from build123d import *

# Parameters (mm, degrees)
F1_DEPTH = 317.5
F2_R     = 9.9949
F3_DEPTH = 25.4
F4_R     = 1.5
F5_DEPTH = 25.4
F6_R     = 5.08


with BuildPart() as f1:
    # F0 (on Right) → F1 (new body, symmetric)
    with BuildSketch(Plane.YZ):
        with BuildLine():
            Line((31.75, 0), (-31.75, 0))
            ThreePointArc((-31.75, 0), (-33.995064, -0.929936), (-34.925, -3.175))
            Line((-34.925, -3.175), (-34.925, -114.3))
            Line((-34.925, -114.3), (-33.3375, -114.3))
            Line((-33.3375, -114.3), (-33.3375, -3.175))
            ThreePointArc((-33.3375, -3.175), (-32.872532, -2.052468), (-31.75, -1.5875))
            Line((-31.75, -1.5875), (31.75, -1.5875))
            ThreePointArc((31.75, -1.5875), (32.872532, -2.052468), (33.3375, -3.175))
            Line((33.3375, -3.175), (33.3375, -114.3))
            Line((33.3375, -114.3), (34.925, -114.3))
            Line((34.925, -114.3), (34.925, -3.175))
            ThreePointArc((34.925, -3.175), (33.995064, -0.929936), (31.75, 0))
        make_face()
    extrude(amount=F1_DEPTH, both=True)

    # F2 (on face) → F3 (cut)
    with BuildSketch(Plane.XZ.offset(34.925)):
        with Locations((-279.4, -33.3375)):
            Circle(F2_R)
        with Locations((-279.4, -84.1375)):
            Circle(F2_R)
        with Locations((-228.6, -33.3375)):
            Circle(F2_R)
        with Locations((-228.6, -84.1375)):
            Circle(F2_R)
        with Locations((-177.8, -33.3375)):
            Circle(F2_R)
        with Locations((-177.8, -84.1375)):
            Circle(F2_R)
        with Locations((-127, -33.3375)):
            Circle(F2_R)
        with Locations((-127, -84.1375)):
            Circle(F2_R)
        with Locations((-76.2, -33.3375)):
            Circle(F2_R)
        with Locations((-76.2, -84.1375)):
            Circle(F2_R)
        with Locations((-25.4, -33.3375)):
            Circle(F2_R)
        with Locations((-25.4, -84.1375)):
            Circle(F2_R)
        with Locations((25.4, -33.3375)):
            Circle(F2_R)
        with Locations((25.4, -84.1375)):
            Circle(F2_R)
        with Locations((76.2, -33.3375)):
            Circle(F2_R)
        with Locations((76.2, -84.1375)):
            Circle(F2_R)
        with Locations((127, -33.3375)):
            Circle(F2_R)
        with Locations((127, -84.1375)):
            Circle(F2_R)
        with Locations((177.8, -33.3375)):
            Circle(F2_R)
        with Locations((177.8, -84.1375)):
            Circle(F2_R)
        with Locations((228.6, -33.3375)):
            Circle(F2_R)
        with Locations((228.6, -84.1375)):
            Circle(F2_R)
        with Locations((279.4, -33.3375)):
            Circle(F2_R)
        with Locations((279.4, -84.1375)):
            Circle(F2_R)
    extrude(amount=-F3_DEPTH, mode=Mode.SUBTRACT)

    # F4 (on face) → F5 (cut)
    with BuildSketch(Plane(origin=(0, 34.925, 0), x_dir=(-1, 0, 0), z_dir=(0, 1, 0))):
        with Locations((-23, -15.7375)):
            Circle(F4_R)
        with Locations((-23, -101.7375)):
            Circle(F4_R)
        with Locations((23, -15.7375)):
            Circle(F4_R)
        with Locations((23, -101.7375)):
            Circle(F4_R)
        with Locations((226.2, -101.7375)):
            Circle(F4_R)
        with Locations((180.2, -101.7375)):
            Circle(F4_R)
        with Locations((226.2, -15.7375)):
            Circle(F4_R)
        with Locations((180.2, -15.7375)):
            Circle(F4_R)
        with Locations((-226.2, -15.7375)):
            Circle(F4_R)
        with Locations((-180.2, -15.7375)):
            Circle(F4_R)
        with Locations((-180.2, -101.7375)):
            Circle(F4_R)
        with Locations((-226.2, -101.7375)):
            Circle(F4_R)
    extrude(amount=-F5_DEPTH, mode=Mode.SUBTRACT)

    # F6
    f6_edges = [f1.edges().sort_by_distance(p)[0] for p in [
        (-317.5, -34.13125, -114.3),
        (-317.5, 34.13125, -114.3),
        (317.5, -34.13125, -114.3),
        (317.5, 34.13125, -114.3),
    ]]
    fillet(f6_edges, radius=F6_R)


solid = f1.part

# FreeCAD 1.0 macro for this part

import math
import FreeCAD as App
import Part
import Sketcher

V = App.Vector
Q = App.Units.Quantity


def edges_at(feature, points):
    """Names of the edges that pass closest to the given points."""
    edges = feature.Shape.Edges
    near = lambda p: min(range(len(edges)), key=lambda i: edges[i].distToShape(Part.Vertex(*p))[0])
    return sorted({f"Edge{near(p) + 1}" for p in points})

doc = App.newDocument("Part")
body = doc.addObject("PartDesign::Body", "Body")

# Sketch on YZ plane
sketch1 = body.newObject("Sketcher::SketchObject", "Sketch")
sketch1.AttachmentSupport = (doc.getObject("YZ_Plane"), [""])
sketch1.MapMode = "FlatFace"
sketch1.addGeometry(Part.LineSegment(V(31.75, 0, 0), V(-31.75, 0, 0)), False)
sketch1.addGeometry(Part.ArcOfCircle(Part.Circle(V(-31.75, -3.175, 0), V(0, 0, 1), 3.175), math.radians(90.000002), math.radians(179.999998)), False)
sketch1.addGeometry(Part.LineSegment(V(-34.925, -3.175, 0), V(-34.925, -114.3, 0)), False)
sketch1.addGeometry(Part.LineSegment(V(-34.925, -114.3, 0), V(-33.3375, -114.3, 0)), False)
sketch1.addGeometry(Part.LineSegment(V(-33.3375, -114.3, 0), V(-33.3375, -3.175, 0)), False)
sketch1.addGeometry(Part.ArcOfCircle(Part.Circle(V(-31.75, -3.175, 0), V(0, 0, 1), 1.5875), math.radians(90.000002), math.radians(179.999998)), False)
sketch1.addGeometry(Part.LineSegment(V(-31.75, -1.5875, 0), V(31.75, -1.5875, 0)), False)
sketch1.addGeometry(Part.ArcOfCircle(Part.Circle(V(31.75, -3.175, 0), V(0, 0, 1), 1.5875), math.radians(0.000002), math.radians(89.999998)), False)
sketch1.addGeometry(Part.LineSegment(V(33.3375, -3.175, 0), V(33.3375, -114.3, 0)), False)
sketch1.addGeometry(Part.LineSegment(V(33.3375, -114.3, 0), V(34.925, -114.3, 0)), False)
sketch1.addGeometry(Part.LineSegment(V(34.925, -114.3, 0), V(34.925, -3.175, 0)), False)
sketch1.addGeometry(Part.ArcOfCircle(Part.Circle(V(31.75, -3.175, 0), V(0, 0, 1), 3.175), math.radians(0.000002), math.radians(89.999998)), False)
sketch1.addConstraint(Sketcher.Constraint("Tangent", 0, 2, 1, 1))
sketch1.addConstraint(Sketcher.Constraint("Tangent", 1, 2, 2, 1))
sketch1.addConstraint(Sketcher.Constraint("Coincident", 2, 2, 3, 1))
sketch1.addConstraint(Sketcher.Constraint("Coincident", 3, 2, 4, 1))
sketch1.addConstraint(Sketcher.Constraint("Tangent", 4, 2, 5, 2))
sketch1.addConstraint(Sketcher.Constraint("Tangent", 5, 1, 6, 1))
sketch1.addConstraint(Sketcher.Constraint("Tangent", 6, 2, 7, 2))
sketch1.addConstraint(Sketcher.Constraint("Tangent", 7, 1, 8, 1))
sketch1.addConstraint(Sketcher.Constraint("Coincident", 8, 2, 9, 1))
sketch1.addConstraint(Sketcher.Constraint("Coincident", 9, 2, 10, 1))
sketch1.addConstraint(Sketcher.Constraint("Tangent", 10, 2, 11, 1))
sketch1.addConstraint(Sketcher.Constraint("Tangent", 11, 2, 0, 1))
sketch1.addConstraint(Sketcher.Constraint("Horizontal", 0))
sketch1.addConstraint(Sketcher.Constraint("Vertical", 2))
sketch1.addConstraint(Sketcher.Constraint("Horizontal", 3))
sketch1.addConstraint(Sketcher.Constraint("Vertical", 4))
sketch1.addConstraint(Sketcher.Constraint("Horizontal", 6))
sketch1.addConstraint(Sketcher.Constraint("Vertical", 8))
sketch1.addConstraint(Sketcher.Constraint("Horizontal", 9))
sketch1.addConstraint(Sketcher.Constraint("Vertical", 10))
sketch1.addConstraint(Sketcher.Constraint("Coincident", 5, 3, 1, 3))
sketch1.addConstraint(Sketcher.Constraint("Coincident", 11, 3, 7, 3))
sketch1.addConstraint(Sketcher.Constraint("Equal", 5, 7))
sketch1.addConstraint(Sketcher.Constraint("Symmetric", 0, 2, 11, 2, -1, 1))
sketch1.addConstraint(Sketcher.Constraint("Horizontal", 3, 2, 8, 2))
sketch1.addConstraint(Sketcher.Constraint("DistanceX", 0, 2, 0, 1, Q("2.5 in")))
sketch1.addConstraint(Sketcher.Constraint("Radius", 1, Q("0.125 in")))
sketch1.addConstraint(Sketcher.Constraint("Radius", 5, Q("0.0625 in")))
sketch1.addConstraint(Sketcher.Constraint("DistanceY", 2, 2, -1, 1, Q("4.5 in")))
pad1 = body.newObject("PartDesign::Pad", "Pad")
pad1.Profile = sketch1
pad1.Length = Q("25 in")
pad1.Midplane = True

# Sketch on XZ plane
sketch2 = body.newObject("Sketcher::SketchObject", "Sketch001")
sketch2.AttachmentSupport = (doc.getObject("XZ_Plane"), [""])
sketch2.MapMode = "FlatFace"
sketch2.AttachmentOffset = App.Placement(V(0, 0, 1.375 * 25.4), App.Rotation())
sketch2.addGeometry(Part.Circle(V(-279.4, -33.3375, 0), V(0, 0, 1), 9.9949), False)
sketch2.addGeometry(Part.Circle(V(-279.4, -84.1375, 0), V(0, 0, 1), 9.9949), False)
sketch2.addGeometry(Part.Circle(V(-228.6, -33.3375, 0), V(0, 0, 1), 9.9949), False)
sketch2.addGeometry(Part.Circle(V(-228.6, -84.1375, 0), V(0, 0, 1), 9.9949), False)
sketch2.addGeometry(Part.Circle(V(-177.8, -33.3375, 0), V(0, 0, 1), 9.9949), False)
sketch2.addGeometry(Part.Circle(V(-177.8, -84.1375, 0), V(0, 0, 1), 9.9949), False)
sketch2.addGeometry(Part.Circle(V(-127, -33.3375, 0), V(0, 0, 1), 9.9949), False)
sketch2.addGeometry(Part.Circle(V(-127, -84.1375, 0), V(0, 0, 1), 9.9949), False)
sketch2.addGeometry(Part.Circle(V(-76.2, -33.3375, 0), V(0, 0, 1), 9.9949), False)
sketch2.addGeometry(Part.Circle(V(-76.2, -84.1375, 0), V(0, 0, 1), 9.9949), False)
sketch2.addGeometry(Part.Circle(V(-25.4, -33.3375, 0), V(0, 0, 1), 9.9949), False)
sketch2.addGeometry(Part.Circle(V(-25.4, -84.1375, 0), V(0, 0, 1), 9.9949), False)
sketch2.addGeometry(Part.Circle(V(25.4, -33.3375, 0), V(0, 0, 1), 9.9949), False)
sketch2.addGeometry(Part.Circle(V(25.4, -84.1375, 0), V(0, 0, 1), 9.9949), False)
sketch2.addGeometry(Part.Circle(V(76.2, -33.3375, 0), V(0, 0, 1), 9.9949), False)
sketch2.addGeometry(Part.Circle(V(76.2, -84.1375, 0), V(0, 0, 1), 9.9949), False)
sketch2.addGeometry(Part.Circle(V(127, -33.3375, 0), V(0, 0, 1), 9.9949), False)
sketch2.addGeometry(Part.Circle(V(127, -84.1375, 0), V(0, 0, 1), 9.9949), False)
sketch2.addGeometry(Part.Circle(V(177.8, -33.3375, 0), V(0, 0, 1), 9.9949), False)
sketch2.addGeometry(Part.Circle(V(177.8, -84.1375, 0), V(0, 0, 1), 9.9949), False)
sketch2.addGeometry(Part.Circle(V(228.6, -33.3375, 0), V(0, 0, 1), 9.9949), False)
sketch2.addGeometry(Part.Circle(V(228.6, -84.1375, 0), V(0, 0, 1), 9.9949), False)
sketch2.addGeometry(Part.Circle(V(279.4, -33.3375, 0), V(0, 0, 1), 9.9949), False)
sketch2.addGeometry(Part.Circle(V(279.4, -84.1375, 0), V(0, 0, 1), 9.9949), False)
sketch2.addConstraint(Sketcher.Constraint("Equal", 0, 1))
sketch2.addConstraint(Sketcher.Constraint("Equal", 1, 2))
sketch2.addConstraint(Sketcher.Constraint("Equal", 2, 3))
sketch2.addConstraint(Sketcher.Constraint("Equal", 3, 4))
sketch2.addConstraint(Sketcher.Constraint("Equal", 4, 5))
sketch2.addConstraint(Sketcher.Constraint("Equal", 5, 6))
sketch2.addConstraint(Sketcher.Constraint("Equal", 6, 7))
sketch2.addConstraint(Sketcher.Constraint("Equal", 7, 8))
sketch2.addConstraint(Sketcher.Constraint("Equal", 8, 9))
sketch2.addConstraint(Sketcher.Constraint("Equal", 9, 10))
sketch2.addConstraint(Sketcher.Constraint("Equal", 10, 11))
sketch2.addConstraint(Sketcher.Constraint("Equal", 11, 12))
sketch2.addConstraint(Sketcher.Constraint("Equal", 12, 13))
sketch2.addConstraint(Sketcher.Constraint("Equal", 13, 14))
sketch2.addConstraint(Sketcher.Constraint("Equal", 14, 15))
sketch2.addConstraint(Sketcher.Constraint("Equal", 15, 16))
sketch2.addConstraint(Sketcher.Constraint("Equal", 16, 17))
sketch2.addConstraint(Sketcher.Constraint("Equal", 17, 18))
sketch2.addConstraint(Sketcher.Constraint("Equal", 18, 19))
sketch2.addConstraint(Sketcher.Constraint("Equal", 19, 20))
sketch2.addConstraint(Sketcher.Constraint("Equal", 20, 21))
sketch2.addConstraint(Sketcher.Constraint("Equal", 21, 22))
sketch2.addConstraint(Sketcher.Constraint("Equal", 22, 23))
sketch2.addConstraint(Sketcher.Constraint("Symmetric", 10, 3, 12, 3, -2))
sketch2.addConstraint(Sketcher.Constraint("Symmetric", 11, 3, 13, 3, -2))
sketch2.addConstraint(Sketcher.Constraint("Symmetric", 8, 3, 14, 3, -2))
sketch2.addConstraint(Sketcher.Constraint("Symmetric", 9, 3, 15, 3, -2))
sketch2.addConstraint(Sketcher.Constraint("Symmetric", 6, 3, 16, 3, -2))
sketch2.addConstraint(Sketcher.Constraint("Symmetric", 7, 3, 17, 3, -2))
sketch2.addConstraint(Sketcher.Constraint("Symmetric", 4, 3, 18, 3, -2))
sketch2.addConstraint(Sketcher.Constraint("Symmetric", 5, 3, 19, 3, -2))
sketch2.addConstraint(Sketcher.Constraint("Symmetric", 2, 3, 20, 3, -2))
sketch2.addConstraint(Sketcher.Constraint("Symmetric", 3, 3, 21, 3, -2))
sketch2.addConstraint(Sketcher.Constraint("Symmetric", 0, 3, 22, 3, -2))
sketch2.addConstraint(Sketcher.Constraint("Symmetric", 1, 3, 23, 3, -2))
sketch2.addConstraint(Sketcher.Constraint("Horizontal", 0, 3, 2, 3))
sketch2.addConstraint(Sketcher.Constraint("Horizontal", 1, 3, 3, 3))
sketch2.addConstraint(Sketcher.Constraint("Horizontal", 2, 3, 4, 3))
sketch2.addConstraint(Sketcher.Constraint("Horizontal", 3, 3, 5, 3))
sketch2.addConstraint(Sketcher.Constraint("Horizontal", 4, 3, 6, 3))
sketch2.addConstraint(Sketcher.Constraint("Horizontal", 5, 3, 7, 3))
sketch2.addConstraint(Sketcher.Constraint("Horizontal", 6, 3, 8, 3))
sketch2.addConstraint(Sketcher.Constraint("Horizontal", 7, 3, 9, 3))
sketch2.addConstraint(Sketcher.Constraint("Horizontal", 8, 3, 10, 3))
sketch2.addConstraint(Sketcher.Constraint("Horizontal", 9, 3, 11, 3))
sketch2.addConstraint(Sketcher.Constraint("Vertical", 0, 3, 1, 3))
sketch2.addConstraint(Sketcher.Constraint("Vertical", 2, 3, 3, 3))
sketch2.addConstraint(Sketcher.Constraint("Vertical", 4, 3, 5, 3))
sketch2.addConstraint(Sketcher.Constraint("Vertical", 6, 3, 7, 3))
sketch2.addConstraint(Sketcher.Constraint("Vertical", 8, 3, 9, 3))
sketch2.addConstraint(Sketcher.Constraint("Vertical", 10, 3, 11, 3))
sketch2.addConstraint(Sketcher.Constraint("Diameter", 0, Q("0.787 in")))
sketch2.addConstraint(Sketcher.Constraint("DistanceX", 0, 3, -1, 1, Q("11 in")))
sketch2.addConstraint(Sketcher.Constraint("DistanceX", 2, 3, -1, 1, Q("9 in")))
sketch2.addConstraint(Sketcher.Constraint("DistanceX", 4, 3, -1, 1, Q("7 in")))
sketch2.addConstraint(Sketcher.Constraint("DistanceX", 6, 3, -1, 1, Q("5 in")))
sketch2.addConstraint(Sketcher.Constraint("DistanceX", 8, 3, -1, 1, Q("3 in")))
sketch2.addConstraint(Sketcher.Constraint("DistanceX", 10, 3, -1, 1, Q("1 in")))
sketch2.addConstraint(Sketcher.Constraint("DistanceY", 1, 3, 0, 3, Q("2 in")))
sketch2.addConstraint(Sketcher.Constraint("DistanceY", 0, 3, -1, 1, Q("1.3125 in")))
pocket1 = body.newObject("PartDesign::Pocket", "Pocket")
pocket1.Profile = sketch2
pocket1.Length = Q("1 in")

# Sketch on XZ plane
sketch3 = body.newObject("Sketcher::SketchObject", "Sketch002")
sketch3.AttachmentSupport = (doc.getObject("XZ_Plane"), [""])
sketch3.MapMode = "FlatFace"
sketch3.AttachmentOffset = App.Placement(V(0, 0, -1.375 * 25.4), App.Rotation())
sketch3.addGeometry(Part.Circle(V(23, -15.7375, 0), V(0, 0, 1), 1.5), False)
sketch3.addGeometry(Part.Circle(V(23, -101.7375, 0), V(0, 0, 1), 1.5), False)
sketch3.addGeometry(Part.Circle(V(-23, -15.7375, 0), V(0, 0, 1), 1.5), False)
sketch3.addGeometry(Part.Circle(V(-23, -101.7375, 0), V(0, 0, 1), 1.5), False)
sketch3.addGeometry(Part.Circle(V(-226.2, -101.7375, 0), V(0, 0, 1), 1.5), False)
sketch3.addGeometry(Part.Circle(V(-180.2, -101.7375, 0), V(0, 0, 1), 1.5), False)
sketch3.addGeometry(Part.Circle(V(-226.2, -15.7375, 0), V(0, 0, 1), 1.5), False)
sketch3.addGeometry(Part.Circle(V(-180.2, -15.7375, 0), V(0, 0, 1), 1.5), False)
sketch3.addGeometry(Part.Circle(V(226.2, -15.7375, 0), V(0, 0, 1), 1.5), False)
sketch3.addGeometry(Part.Circle(V(180.2, -15.7375, 0), V(0, 0, 1), 1.5), False)
sketch3.addGeometry(Part.Circle(V(180.2, -101.7375, 0), V(0, 0, 1), 1.5), False)
sketch3.addGeometry(Part.Circle(V(226.2, -101.7375, 0), V(0, 0, 1), 1.5), False)
sketch3.addConstraint(Sketcher.Constraint("Equal", 0, 1))
sketch3.addConstraint(Sketcher.Constraint("Equal", 1, 2))
sketch3.addConstraint(Sketcher.Constraint("Equal", 2, 3))
sketch3.addConstraint(Sketcher.Constraint("Equal", 3, 4))
sketch3.addConstraint(Sketcher.Constraint("Equal", 4, 5))
sketch3.addConstraint(Sketcher.Constraint("Equal", 5, 6))
sketch3.addConstraint(Sketcher.Constraint("Equal", 6, 7))
sketch3.addConstraint(Sketcher.Constraint("Equal", 7, 8))
sketch3.addConstraint(Sketcher.Constraint("Equal", 8, 9))
sketch3.addConstraint(Sketcher.Constraint("Equal", 9, 10))
sketch3.addConstraint(Sketcher.Constraint("Equal", 10, 11))
sketch3.addConstraint(Sketcher.Constraint("Symmetric", 0, 3, 2, 3, -2))
sketch3.addConstraint(Sketcher.Constraint("Symmetric", 1, 3, 3, 3, -2))
sketch3.addConstraint(Sketcher.Constraint("Symmetric", 6, 3, 8, 3, -2))
sketch3.addConstraint(Sketcher.Constraint("Symmetric", 7, 3, 9, 3, -2))
sketch3.addConstraint(Sketcher.Constraint("Symmetric", 5, 3, 10, 3, -2))
sketch3.addConstraint(Sketcher.Constraint("Symmetric", 4, 3, 11, 3, -2))
sketch3.addConstraint(Sketcher.Constraint("Horizontal", 3, 3, 4, 3))
sketch3.addConstraint(Sketcher.Constraint("Horizontal", 4, 3, 5, 3))
sketch3.addConstraint(Sketcher.Constraint("Horizontal", 2, 3, 6, 3))
sketch3.addConstraint(Sketcher.Constraint("Horizontal", 6, 3, 7, 3))
sketch3.addConstraint(Sketcher.Constraint("Vertical", 0, 3, 1, 3))
sketch3.addConstraint(Sketcher.Constraint("Vertical", 4, 3, 6, 3))
sketch3.addConstraint(Sketcher.Constraint("Vertical", 5, 3, 7, 3))
sketch3.addConstraint(Sketcher.Constraint("DistanceX", 4, 3, 3, 3, Q("8 in")))
sketch3.addConstraint(Sketcher.Constraint("DistanceX", 5, 3, 1, 3, Q("8 in")))
sketch3.addConstraint(Sketcher.Constraint("Diameter", 0, Q("3 mm")))
sketch3.addConstraint(Sketcher.Constraint("DistanceX", -1, 1, 0, 3, Q("23 mm")))
sketch3.addConstraint(Sketcher.Constraint("DistanceY", 0, 3, -1, 1, Q("15.7375 mm")))
sketch3.addConstraint(Sketcher.Constraint("DistanceY", 1, 3, -1, 1, Q("101.7375 mm")))
pocket2 = body.newObject("PartDesign::Pocket", "Pocket001")
pocket2.Profile = sketch3
pocket2.Length = Q("1 in")
pocket2.Reversed = True
doc.recompute()

fillet = body.newObject("PartDesign::Fillet", "Fillet")
fillet.Base = (pocket2, edges_at(pocket2, [
    (-317.5, -34.131, -114.3),
    (-317.5, 34.131, -114.3),
    (317.5, -34.131, -114.3),
    (317.5, 34.131, -114.3),
]))
fillet.Radius = Q("0.2 in")

doc.recompute()
